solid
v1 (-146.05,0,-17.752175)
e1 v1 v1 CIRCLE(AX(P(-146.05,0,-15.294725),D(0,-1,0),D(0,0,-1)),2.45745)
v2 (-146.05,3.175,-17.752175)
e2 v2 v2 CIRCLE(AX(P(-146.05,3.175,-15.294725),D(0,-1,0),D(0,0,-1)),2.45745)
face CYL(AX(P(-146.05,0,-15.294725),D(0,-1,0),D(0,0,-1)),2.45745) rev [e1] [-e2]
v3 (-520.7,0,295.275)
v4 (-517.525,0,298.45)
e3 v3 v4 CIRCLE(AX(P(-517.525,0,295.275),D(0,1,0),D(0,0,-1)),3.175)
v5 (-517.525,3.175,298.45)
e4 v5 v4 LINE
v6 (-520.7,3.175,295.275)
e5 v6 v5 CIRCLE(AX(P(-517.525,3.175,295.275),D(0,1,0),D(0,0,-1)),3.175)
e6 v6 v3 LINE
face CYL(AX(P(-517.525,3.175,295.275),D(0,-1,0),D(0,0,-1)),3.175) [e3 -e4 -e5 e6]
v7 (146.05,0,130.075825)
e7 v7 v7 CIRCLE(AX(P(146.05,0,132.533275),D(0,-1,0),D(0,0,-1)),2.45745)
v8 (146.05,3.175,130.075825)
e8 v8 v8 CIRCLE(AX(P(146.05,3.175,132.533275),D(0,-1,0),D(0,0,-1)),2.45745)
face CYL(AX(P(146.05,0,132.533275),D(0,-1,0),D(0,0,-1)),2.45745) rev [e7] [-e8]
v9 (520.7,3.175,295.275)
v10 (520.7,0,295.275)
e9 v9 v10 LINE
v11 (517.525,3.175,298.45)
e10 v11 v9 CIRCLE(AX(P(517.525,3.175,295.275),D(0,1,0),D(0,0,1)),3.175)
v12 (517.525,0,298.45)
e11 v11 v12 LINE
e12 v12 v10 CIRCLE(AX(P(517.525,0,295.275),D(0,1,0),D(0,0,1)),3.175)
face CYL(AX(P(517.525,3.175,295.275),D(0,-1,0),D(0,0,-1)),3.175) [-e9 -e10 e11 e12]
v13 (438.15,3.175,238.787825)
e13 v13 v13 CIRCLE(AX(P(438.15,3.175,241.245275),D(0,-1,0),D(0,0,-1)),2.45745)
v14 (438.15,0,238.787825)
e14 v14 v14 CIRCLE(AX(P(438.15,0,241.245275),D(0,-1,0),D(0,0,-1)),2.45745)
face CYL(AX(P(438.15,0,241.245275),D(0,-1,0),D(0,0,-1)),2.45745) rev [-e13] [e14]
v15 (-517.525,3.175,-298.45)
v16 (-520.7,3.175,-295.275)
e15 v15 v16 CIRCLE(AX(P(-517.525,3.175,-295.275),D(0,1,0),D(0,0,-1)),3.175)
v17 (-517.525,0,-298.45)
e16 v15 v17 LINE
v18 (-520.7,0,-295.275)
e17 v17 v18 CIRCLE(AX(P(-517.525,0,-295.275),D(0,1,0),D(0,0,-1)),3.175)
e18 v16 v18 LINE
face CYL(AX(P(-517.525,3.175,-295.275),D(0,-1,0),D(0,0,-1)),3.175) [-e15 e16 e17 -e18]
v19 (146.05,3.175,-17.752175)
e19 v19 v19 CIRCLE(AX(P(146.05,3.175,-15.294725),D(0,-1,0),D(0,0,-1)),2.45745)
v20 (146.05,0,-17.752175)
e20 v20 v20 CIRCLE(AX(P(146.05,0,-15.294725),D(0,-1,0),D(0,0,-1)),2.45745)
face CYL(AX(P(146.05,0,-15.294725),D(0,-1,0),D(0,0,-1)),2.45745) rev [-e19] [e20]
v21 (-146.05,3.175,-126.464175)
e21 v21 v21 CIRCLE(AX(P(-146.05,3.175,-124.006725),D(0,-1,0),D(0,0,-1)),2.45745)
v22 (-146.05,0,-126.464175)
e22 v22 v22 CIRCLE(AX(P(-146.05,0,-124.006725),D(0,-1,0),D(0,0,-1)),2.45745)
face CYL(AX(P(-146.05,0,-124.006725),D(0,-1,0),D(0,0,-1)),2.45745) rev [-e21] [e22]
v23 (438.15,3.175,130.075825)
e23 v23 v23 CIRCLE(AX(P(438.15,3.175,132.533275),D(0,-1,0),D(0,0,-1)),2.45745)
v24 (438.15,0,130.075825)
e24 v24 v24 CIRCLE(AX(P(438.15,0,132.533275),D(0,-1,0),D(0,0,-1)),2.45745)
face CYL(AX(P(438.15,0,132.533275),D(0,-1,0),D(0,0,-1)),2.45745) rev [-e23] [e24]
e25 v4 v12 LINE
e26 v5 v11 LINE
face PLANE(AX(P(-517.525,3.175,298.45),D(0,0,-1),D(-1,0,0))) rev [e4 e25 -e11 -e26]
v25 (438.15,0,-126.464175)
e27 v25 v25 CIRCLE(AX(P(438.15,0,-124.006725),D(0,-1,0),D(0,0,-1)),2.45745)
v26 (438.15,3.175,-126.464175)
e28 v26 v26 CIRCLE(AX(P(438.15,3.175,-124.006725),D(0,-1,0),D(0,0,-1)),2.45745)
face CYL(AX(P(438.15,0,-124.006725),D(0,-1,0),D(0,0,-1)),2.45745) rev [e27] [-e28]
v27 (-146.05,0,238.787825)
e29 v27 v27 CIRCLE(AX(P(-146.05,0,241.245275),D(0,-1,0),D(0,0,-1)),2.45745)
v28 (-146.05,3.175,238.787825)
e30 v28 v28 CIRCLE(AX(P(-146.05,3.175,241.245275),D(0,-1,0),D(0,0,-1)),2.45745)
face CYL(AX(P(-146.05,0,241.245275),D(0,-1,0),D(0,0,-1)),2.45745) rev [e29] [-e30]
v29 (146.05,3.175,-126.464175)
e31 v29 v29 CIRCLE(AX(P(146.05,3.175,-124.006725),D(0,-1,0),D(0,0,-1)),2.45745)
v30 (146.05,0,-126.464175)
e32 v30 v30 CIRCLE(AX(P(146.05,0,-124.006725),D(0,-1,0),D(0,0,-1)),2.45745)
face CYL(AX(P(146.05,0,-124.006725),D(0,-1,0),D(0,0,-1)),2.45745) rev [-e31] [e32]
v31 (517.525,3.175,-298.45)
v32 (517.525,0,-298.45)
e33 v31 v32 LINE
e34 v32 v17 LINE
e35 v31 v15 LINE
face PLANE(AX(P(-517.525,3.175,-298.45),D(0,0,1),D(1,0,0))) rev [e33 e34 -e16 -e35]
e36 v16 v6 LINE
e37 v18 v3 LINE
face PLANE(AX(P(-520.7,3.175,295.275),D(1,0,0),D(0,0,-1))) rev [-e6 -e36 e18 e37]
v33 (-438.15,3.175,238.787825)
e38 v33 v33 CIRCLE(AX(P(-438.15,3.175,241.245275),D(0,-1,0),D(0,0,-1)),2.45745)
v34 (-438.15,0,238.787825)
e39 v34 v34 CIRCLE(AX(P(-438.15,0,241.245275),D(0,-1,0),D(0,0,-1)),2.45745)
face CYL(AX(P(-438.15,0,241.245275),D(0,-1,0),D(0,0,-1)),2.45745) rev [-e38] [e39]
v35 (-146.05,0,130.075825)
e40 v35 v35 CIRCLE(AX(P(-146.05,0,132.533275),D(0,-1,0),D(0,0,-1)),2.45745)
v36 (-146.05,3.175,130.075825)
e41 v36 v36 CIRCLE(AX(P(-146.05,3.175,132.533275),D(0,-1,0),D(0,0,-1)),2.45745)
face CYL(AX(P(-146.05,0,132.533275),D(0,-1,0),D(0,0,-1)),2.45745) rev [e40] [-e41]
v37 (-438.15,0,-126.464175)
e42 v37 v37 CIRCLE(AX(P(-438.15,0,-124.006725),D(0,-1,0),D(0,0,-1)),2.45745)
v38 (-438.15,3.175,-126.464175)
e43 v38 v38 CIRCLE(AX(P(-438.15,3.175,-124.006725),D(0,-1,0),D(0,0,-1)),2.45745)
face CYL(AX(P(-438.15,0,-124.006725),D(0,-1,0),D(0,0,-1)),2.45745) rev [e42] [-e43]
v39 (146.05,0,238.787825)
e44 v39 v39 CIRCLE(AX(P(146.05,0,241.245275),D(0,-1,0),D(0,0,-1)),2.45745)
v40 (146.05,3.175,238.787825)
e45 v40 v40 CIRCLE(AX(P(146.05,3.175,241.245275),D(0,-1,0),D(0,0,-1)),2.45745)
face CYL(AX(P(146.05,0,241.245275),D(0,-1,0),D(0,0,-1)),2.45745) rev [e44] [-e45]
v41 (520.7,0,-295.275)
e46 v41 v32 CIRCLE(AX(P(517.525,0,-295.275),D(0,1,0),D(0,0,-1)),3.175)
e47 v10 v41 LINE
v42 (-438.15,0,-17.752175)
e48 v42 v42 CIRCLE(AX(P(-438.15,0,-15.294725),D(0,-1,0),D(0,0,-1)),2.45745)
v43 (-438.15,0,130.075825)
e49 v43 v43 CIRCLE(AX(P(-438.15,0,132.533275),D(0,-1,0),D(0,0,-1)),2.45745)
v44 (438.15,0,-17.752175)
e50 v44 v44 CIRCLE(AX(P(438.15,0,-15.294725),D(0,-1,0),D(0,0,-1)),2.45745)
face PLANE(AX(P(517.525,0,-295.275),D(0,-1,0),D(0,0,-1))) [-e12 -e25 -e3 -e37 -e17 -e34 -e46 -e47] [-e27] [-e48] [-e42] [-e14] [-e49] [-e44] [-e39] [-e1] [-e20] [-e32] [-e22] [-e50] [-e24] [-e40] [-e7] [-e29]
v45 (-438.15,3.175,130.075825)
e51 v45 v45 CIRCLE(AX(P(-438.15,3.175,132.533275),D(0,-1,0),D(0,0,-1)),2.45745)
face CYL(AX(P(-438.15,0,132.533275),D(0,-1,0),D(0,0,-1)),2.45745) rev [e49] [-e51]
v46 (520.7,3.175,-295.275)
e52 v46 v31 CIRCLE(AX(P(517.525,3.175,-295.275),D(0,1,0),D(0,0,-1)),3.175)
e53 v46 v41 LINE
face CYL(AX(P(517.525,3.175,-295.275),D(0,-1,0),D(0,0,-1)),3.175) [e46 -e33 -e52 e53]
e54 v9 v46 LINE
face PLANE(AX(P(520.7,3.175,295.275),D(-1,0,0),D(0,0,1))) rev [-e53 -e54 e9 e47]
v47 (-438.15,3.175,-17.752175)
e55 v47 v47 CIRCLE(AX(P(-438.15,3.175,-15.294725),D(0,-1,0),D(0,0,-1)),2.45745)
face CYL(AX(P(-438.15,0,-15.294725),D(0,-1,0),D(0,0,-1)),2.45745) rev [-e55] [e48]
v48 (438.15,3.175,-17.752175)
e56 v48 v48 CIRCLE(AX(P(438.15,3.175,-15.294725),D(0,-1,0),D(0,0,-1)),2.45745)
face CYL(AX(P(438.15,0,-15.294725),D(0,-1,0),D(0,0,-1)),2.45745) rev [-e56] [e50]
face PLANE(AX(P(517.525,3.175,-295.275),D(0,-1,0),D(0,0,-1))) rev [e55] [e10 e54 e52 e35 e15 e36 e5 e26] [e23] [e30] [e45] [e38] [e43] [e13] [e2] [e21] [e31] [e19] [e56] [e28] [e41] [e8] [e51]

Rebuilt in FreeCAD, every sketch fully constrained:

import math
import FreeCAD as App
import Part
import Sketcher
Q = App.Units.Quantity

doc = App.newDocument("Part")
body = doc.addObject("PartDesign::Body", "Body")

sketch1 = body.newObject("Sketcher::SketchObject", "Sketch")
sketch1.AttachmentSupport = (doc.getObject("XZ_Plane"), [""])
sketch1.MapMode = "FlatFace"
sketch1.addGeometry([
    Part.LineSegment(App.Vector(-517.5, 298.4, 0), App.Vector(517.5, 298.4, 0)),
    Part.ArcOfCircle(Part.Circle(App.Vector(517.5, 295.3, 0), App.Vector(0, 0, 1), 3.2), math.radians(0), math.radians(90)),
    Part.LineSegment(App.Vector(520.7, 295.3, 0), App.Vector(520.7, -295.3, 0)),
    Part.ArcOfCircle(Part.Circle(App.Vector(517.5, -295.3, 0), App.Vector(0, 0, 1), 3.2), math.radians(-90), math.radians(0)),
    Part.LineSegment(App.Vector(517.5, -298.4, 0), App.Vector(-517.5, -298.4, 0)),
    Part.ArcOfCircle(Part.Circle(App.Vector(-517.5, -295.3, 0), App.Vector(0, 0, 1), 3.2), math.radians(-180), math.radians(-90)),
    Part.LineSegment(App.Vector(-520.7, -295.3, 0), App.Vector(-520.7, 295.3, 0)),
    Part.ArcOfCircle(Part.Circle(App.Vector(-517.5, 295.3, 0), App.Vector(0, 0, 1), 3.2), math.radians(90), math.radians(180)),
], False)
sketch1.addConstraint([
    Sketcher.Constraint("Tangent", 0, 2, 1, 2),
    Sketcher.Constraint("Tangent", 1, 1, 2, 1),
    Sketcher.Constraint("Tangent", 2, 2, 3, 2),
    Sketcher.Constraint("Tangent", 3, 1, 4, 1),
    Sketcher.Constraint("Tangent", 4, 2, 5, 2),
    Sketcher.Constraint("Tangent", 5, 1, 6, 1),
    Sketcher.Constraint("Tangent", 6, 2, 7, 2),
    Sketcher.Constraint("Tangent", 7, 1, 0, 1),
    Sketcher.Constraint("Horizontal", 0),
    Sketcher.Constraint("Vertical", 2),
    Sketcher.Constraint("Horizontal", 4),
    Sketcher.Constraint("Vertical", 6),
    Sketcher.Constraint("Equal", 1, 3),
    Sketcher.Constraint("Equal", 3, 5),
    Sketcher.Constraint("Equal", 5, 7),
    Sketcher.Constraint("Symmetric", 1, 3, 5, 3, -1, 1),
    Sketcher.Constraint("Radius", 1, Q("0.125 in")),
    Sketcher.Constraint("DistanceX", 0, 1, 0, 2, Q("40.75 in")),
    Sketcher.Constraint("DistanceY", 2, 2, 2, 1, Q("23.25 in")),
])
pad1 = body.newObject("PartDesign::Pad", "Pad")
pad1.Profile = sketch1
pad1.Length = Q("0.125 in")
pad1.Reversed = True

sketch2 = body.newObject("Sketcher::SketchObject", "Sketch001")
sketch2.AttachmentSupport = (doc.getObject("XZ_Plane"), [""])
sketch2.MapMode = "FlatFace"
sketch2.addGeometry([
    Part.Circle(App.Vector(-438.1, 241.2, 0), App.Vector(0, 0, 1), 2.5),
    Part.Circle(App.Vector(-438.1, 132.5, 0), App.Vector(0, 0, 1), 2.5),
    Part.Circle(App.Vector(-146.1, 241.2, 0), App.Vector(0, 0, 1), 2.5),
    Part.Circle(App.Vector(-146.1, 132.5, 0), App.Vector(0, 0, 1), 2.5),
    Part.Circle(App.Vector(146.1, 241.2, 0), App.Vector(0, 0, 1), 2.5),
    Part.Circle(App.Vector(146.1, 132.5, 0), App.Vector(0, 0, 1), 2.5),
    Part.Circle(App.Vector(438.1, 241.2, 0), App.Vector(0, 0, 1), 2.5),
    Part.Circle(App.Vector(438.1, 132.5, 0), App.Vector(0, 0, 1), 2.5),
    Part.Circle(App.Vector(438.1, -15.3, 0), App.Vector(0, 0, 1), 2.5),
    Part.Circle(App.Vector(438.1, -124, 0), App.Vector(0, 0, 1), 2.5),
    Part.Circle(App.Vector(146.1, -15.3, 0), App.Vector(0, 0, 1), 2.5),
    Part.Circle(App.Vector(146.1, -124, 0), App.Vector(0, 0, 1), 2.5),
    Part.Circle(App.Vector(-146.1, -124, 0), App.Vector(0, 0, 1), 2.5),
    Part.Circle(App.Vector(-146.1, -15.3, 0), App.Vector(0, 0, 1), 2.5),
    Part.Circle(App.Vector(-438.1, -15.3, 0), App.Vector(0, 0, 1), 2.5),
    Part.Circle(App.Vector(-438.1, -124, 0), App.Vector(0, 0, 1), 2.5),
], False)
sketch2.addConstraint([
    Sketcher.Constraint("Equal", 0, 1),
    Sketcher.Constraint("Equal", 1, 2),
    Sketcher.Constraint("Equal", 2, 3),
    Sketcher.Constraint("Equal", 3, 4),
    Sketcher.Constraint("Equal", 4, 5),
    Sketcher.Constraint("Equal", 5, 6),
    Sketcher.Constraint("Equal", 6, 7),
    Sketcher.Constraint("Equal", 7, 8),
    Sketcher.Constraint("Equal", 8, 9),
    Sketcher.Constraint("Equal", 9, 10),
    Sketcher.Constraint("Equal", 10, 11),
    Sketcher.Constraint("Equal", 11, 12),
    Sketcher.Constraint("Equal", 12, 13),
    Sketcher.Constraint("Equal", 13, 14),
    Sketcher.Constraint("Equal", 14, 15),
    Sketcher.Constraint("Symmetric", 2, 3, 4, 3, -2),
    Sketcher.Constraint("Symmetric", 3, 3, 5, 3, -2),
    Sketcher.Constraint("Symmetric", 0, 3, 6, 3, -2),
    Sketcher.Constraint("Symmetric", 1, 3, 7, 3, -2),
    Sketcher.Constraint("Symmetric", 11, 3, 12, 3, -2),
    Sketcher.Constraint("Symmetric", 10, 3, 13, 3, -2),
    Sketcher.Constraint("Symmetric", 8, 3, 14, 3, -2),
    Sketcher.Constraint("Symmetric", 9, 3, 15, 3, -2),
    Sketcher.Constraint("Horizontal", 0, 3, 2, 3),
    Sketcher.Constraint("Horizontal", 1, 3, 3, 3),
    Sketcher.Constraint("Horizontal", 8, 3, 10, 3),
    Sketcher.Constraint("Horizontal", 9, 3, 11, 3),
    Sketcher.Constraint("Vertical", 0, 3, 1, 3),
    Sketcher.Constraint("Vertical", 2, 3, 3, 3),
    Sketcher.Constraint("Vertical", 7, 3, 8, 3),
    Sketcher.Constraint("Vertical", 8, 3, 9, 3),
    Sketcher.Constraint("Vertical", 5, 3, 10, 3),
    Sketcher.Constraint("Vertical", 10, 3, 11, 3),
    Sketcher.Constraint("DistanceX", 0, 3, 4, 3, Q("23 in")),
    Sketcher.Constraint("Diameter", 0, Q("0.1935 in")),
    Sketcher.Constraint("DistanceX", 0, 3, 2, 3, Q("11.5 in")),
    Sketcher.Constraint("DistanceY", 8, 3, 6, 3, Q("10.1 in")),
    Sketcher.Constraint("DistanceY", 9, 3, 7, 3, Q("10.1 in")),
    Sketcher.Constraint("DistanceY", 1, 3, 0, 3, Q("4.28 in")),
    Sketcher.Constraint("DistanceY", -1, 1, 0, 3, Q("241.245275 mm")),
])
doc.recompute()
hole = body.newObject("PartDesign::Hole", "Hole")
hole.Profile = sketch2
hole.ThreadType = "None"
hole.Diameter = Q("0.1935 in")
hole.DepthType = "ThroughAll"

doc.recompute()
